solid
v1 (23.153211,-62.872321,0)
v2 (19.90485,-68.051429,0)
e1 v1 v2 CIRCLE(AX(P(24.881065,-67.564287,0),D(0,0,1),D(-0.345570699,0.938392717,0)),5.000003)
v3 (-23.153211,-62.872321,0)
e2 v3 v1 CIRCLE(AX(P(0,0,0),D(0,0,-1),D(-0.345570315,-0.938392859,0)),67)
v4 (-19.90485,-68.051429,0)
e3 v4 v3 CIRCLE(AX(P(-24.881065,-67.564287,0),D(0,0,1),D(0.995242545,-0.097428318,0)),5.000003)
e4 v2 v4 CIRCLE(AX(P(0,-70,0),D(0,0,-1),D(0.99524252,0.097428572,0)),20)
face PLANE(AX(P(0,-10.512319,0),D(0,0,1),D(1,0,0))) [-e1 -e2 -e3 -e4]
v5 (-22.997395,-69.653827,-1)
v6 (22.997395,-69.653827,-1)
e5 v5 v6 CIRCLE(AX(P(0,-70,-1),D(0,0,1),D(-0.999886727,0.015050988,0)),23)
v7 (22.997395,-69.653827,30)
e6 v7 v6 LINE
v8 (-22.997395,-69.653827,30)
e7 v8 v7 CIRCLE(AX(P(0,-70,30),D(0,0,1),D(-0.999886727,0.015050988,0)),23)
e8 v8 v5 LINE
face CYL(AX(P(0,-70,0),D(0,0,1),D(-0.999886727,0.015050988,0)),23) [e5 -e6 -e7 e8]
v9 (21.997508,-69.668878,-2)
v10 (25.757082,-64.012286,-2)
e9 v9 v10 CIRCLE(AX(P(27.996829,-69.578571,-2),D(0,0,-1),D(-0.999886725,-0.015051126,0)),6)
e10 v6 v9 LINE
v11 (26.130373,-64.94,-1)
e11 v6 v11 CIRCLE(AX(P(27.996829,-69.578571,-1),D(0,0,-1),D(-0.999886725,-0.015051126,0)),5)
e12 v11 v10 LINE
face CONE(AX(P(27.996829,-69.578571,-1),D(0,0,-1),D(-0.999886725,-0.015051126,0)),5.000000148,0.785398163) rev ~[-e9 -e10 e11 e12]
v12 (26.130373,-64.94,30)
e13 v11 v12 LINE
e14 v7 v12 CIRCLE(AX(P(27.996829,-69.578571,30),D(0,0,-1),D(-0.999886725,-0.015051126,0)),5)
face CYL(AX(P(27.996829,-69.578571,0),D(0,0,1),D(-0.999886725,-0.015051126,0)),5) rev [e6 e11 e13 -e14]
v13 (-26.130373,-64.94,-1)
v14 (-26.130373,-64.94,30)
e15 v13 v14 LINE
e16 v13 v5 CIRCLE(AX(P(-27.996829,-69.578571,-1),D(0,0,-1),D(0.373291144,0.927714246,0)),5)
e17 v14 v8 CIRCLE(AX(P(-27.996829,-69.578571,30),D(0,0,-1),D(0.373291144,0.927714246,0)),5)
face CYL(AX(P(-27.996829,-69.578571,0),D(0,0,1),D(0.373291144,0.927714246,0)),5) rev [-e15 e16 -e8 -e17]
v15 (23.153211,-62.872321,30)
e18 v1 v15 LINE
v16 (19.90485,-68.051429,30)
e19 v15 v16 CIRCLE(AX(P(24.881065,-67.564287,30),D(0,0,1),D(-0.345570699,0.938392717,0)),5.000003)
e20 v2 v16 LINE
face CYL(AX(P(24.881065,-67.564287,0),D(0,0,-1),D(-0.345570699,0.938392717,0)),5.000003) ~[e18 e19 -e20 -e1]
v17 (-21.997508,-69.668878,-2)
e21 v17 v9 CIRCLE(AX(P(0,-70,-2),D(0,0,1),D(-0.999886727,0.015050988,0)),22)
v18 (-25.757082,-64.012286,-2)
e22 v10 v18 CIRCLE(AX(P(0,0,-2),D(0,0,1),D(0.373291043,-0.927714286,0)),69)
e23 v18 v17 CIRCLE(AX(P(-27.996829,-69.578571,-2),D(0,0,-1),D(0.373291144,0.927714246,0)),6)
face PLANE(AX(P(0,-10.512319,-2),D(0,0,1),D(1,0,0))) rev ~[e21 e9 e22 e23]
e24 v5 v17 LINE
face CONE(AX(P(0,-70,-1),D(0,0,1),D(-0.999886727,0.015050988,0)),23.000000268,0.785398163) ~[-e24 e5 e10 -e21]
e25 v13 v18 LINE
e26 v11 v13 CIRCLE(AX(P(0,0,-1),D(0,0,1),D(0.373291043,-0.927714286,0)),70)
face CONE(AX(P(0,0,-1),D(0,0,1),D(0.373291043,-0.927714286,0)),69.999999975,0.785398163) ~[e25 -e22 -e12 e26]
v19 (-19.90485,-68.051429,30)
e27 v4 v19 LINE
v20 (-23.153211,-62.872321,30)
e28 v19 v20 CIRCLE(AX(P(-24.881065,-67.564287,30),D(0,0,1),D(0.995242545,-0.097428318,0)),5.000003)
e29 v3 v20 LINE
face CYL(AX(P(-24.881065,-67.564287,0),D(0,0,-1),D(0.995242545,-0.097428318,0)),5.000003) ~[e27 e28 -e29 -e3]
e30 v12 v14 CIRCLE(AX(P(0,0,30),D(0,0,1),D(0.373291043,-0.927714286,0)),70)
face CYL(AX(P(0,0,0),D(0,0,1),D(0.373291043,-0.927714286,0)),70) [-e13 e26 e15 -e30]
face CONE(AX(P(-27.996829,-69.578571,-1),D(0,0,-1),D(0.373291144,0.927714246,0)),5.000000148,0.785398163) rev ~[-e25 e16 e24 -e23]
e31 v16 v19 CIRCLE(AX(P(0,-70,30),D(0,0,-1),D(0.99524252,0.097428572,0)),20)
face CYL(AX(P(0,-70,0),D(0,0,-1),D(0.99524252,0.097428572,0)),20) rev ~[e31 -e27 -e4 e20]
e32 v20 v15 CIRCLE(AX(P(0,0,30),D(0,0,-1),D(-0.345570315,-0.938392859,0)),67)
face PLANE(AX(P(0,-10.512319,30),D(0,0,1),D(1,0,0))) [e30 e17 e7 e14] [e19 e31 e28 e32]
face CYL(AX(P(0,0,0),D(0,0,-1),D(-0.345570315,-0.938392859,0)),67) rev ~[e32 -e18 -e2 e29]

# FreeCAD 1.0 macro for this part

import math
import FreeCAD as App
import Part
import Sketcher
Q = App.Units.Quantity


def edges_at(feature, points):
    """Names of the edges that pass closest to the given points."""
    edges = feature.Shape.Edges
    near = lambda p: min(range(len(edges)), key=lambda i: edges[i].distToShape(Part.Vertex(*p))[0])
    return sorted({f"Edge{near(p) + 1}" for p in points})

doc = App.newDocument("Part")
body = doc.addObject("PartDesign::Body", "Body")

sketch1 = body.newObject("Sketcher::SketchObject", "Sketch")
sketch1.AttachmentSupport = (doc.getObject("XY_Plane"), [""])
sketch1.MapMode = "FlatFace"
sketch1.addGeometry(Part.ArcOfCircle(Part.Circle(App.Vector(28, -70, 0), App.Vector(0, 0, 1), 5), math.radians(112), math.radians(181)), False)
sketch1.addGeometry(Part.ArcOfCircle(Part.Circle(App.Vector(0, 0, 0), App.Vector(0, 0, 1), 70), math.radians(-68), math.radians(248)), False)
sketch1.addGeometry(Part.ArcOfCircle(Part.Circle(App.Vector(-28, -70, 0), App.Vector(0, 0, 1), 5), math.radians(-1), math.radians(68)), False)
sketch1.addGeometry(Part.ArcOfCircle(Part.Circle(App.Vector(0, -70, 0), App.Vector(0, 0, 1), 23), math.radians(179), math.radians(361)), False)
sketch1.addGeometry(Part.ArcOfCircle(Part.Circle(App.Vector(-25, -68, 0), App.Vector(0, 0, 1), 5), math.radians(-6), math.radians(70)), False)
sketch1.addGeometry(Part.ArcOfCircle(Part.Circle(App.Vector(0, 0, 0), App.Vector(0, 0, 1), 67), math.radians(-70), math.radians(250)), False)
sketch1.addGeometry(Part.ArcOfCircle(Part.Circle(App.Vector(25, -68, 0), App.Vector(0, 0, 1), 5), math.radians(110), math.radians(186)), False)
sketch1.addGeometry(Part.ArcOfCircle(Part.Circle(App.Vector(0, -70, 0), App.Vector(0, 0, 1), 20), math.radians(174), math.radians(366)), False)
sketch1.addConstraint(Sketcher.Constraint("Tangent", 0, 1, 1, 1))
sketch1.addConstraint(Sketcher.Constraint("Tangent", 1, 2, 2, 2))
sketch1.addConstraint(Sketcher.Constraint("Tangent", 2, 1, 3, 1))
sketch1.addConstraint(Sketcher.Constraint("Tangent", 3, 2, 0, 2))
sketch1.addConstraint(Sketcher.Constraint("Tangent", 4, 2, 5, 2))
sketch1.addConstraint(Sketcher.Constraint("Tangent", 5, 1, 6, 1))
sketch1.addConstraint(Sketcher.Constraint("Tangent", 6, 2, 7, 2))
sketch1.addConstraint(Sketcher.Constraint("Tangent", 7, 1, 4, 1))
sketch1.addConstraint(Sketcher.Constraint("Coincident", 1, 3, -1, 1))
sketch1.addConstraint(Sketcher.Constraint("Coincident", 5, 3, -1, 1))
sketch1.addConstraint(Sketcher.Constraint("Coincident", 7, 3, 3, 3))
sketch1.addConstraint(Sketcher.Constraint("Equal", 0, 2))
sketch1.addConstraint(Sketcher.Constraint("Equal", 4, 6))
sketch1.addConstraint(Sketcher.Constraint("PointOnObject", 3, 3, -2))
sketch1.addConstraint(Sketcher.Constraint("Radius", 0, Q("5 mm")))
sketch1.addConstraint(Sketcher.Constraint("Radius", 1, Q("70 mm")))
sketch1.addConstraint(Sketcher.Constraint("Radius", 3, Q("23 mm")))
sketch1.addConstraint(Sketcher.Constraint("Radius", 5, Q("67 mm")))
sketch1.addConstraint(Sketcher.Constraint("Radius", 7, Q("20 mm")))
sketch1.addConstraint(Sketcher.Constraint("DistanceY", 3, 3, -1, 1, Q("70 mm")))
sketch1.addConstraint(Sketcher.Constraint("Radius", 4, Q("5.000003 mm")))
pad1 = body.newObject("PartDesign::Pad", "Pad")
pad1.Profile = sketch1
pad1.Length = 30

sketch2 = body.newObject("Sketcher::SketchObject", "Sketch001")
sketch2.AttachmentSupport = (doc.getObject("XY_Plane"), [""])
sketch2.MapMode = "FlatFace"
sketch2.addGeometry(Part.ArcOfCircle(Part.Circle(App.Vector(28, -70, 0), App.Vector(0, 0, 1), 5), math.radians(112), math.radians(181)), False)
sketch2.addGeometry(Part.ArcOfCircle(Part.Circle(App.Vector(0, 0, 0), App.Vector(0, 0, 1), 70), math.radians(-68), math.radians(248)), False)
sketch2.addGeometry(Part.ArcOfCircle(Part.Circle(App.Vector(-28, -70, 0), App.Vector(0, 0, 1), 5), math.radians(-1), math.radians(68)), False)
sketch2.addGeometry(Part.ArcOfCircle(Part.Circle(App.Vector(0, -70, 0), App.Vector(0, 0, 1), 23), math.radians(179), math.radians(361)), False)
sketch2.addConstraint(Sketcher.Constraint("Tangent", 0, 1, 1, 1))
sketch2.addConstraint(Sketcher.Constraint("Tangent", 1, 2, 2, 2))
sketch2.addConstraint(Sketcher.Constraint("Tangent", 2, 1, 3, 1))
sketch2.addConstraint(Sketcher.Constraint("Tangent", 3, 2, 0, 2))
sketch2.addConstraint(Sketcher.Constraint("Coincident", 1, 3, -1, 1))
sketch2.addConstraint(Sketcher.Constraint("Equal", 0, 2))
sketch2.addConstraint(Sketcher.Constraint("PointOnObject", 3, 3, -2))
sketch2.addConstraint(Sketcher.Constraint("Radius", 0, Q("5 mm")))
sketch2.addConstraint(Sketcher.Constraint("Radius", 1, Q("70 mm")))
sketch2.addConstraint(Sketcher.Constraint("Radius", 3, Q("23 mm")))
sketch2.addConstraint(Sketcher.Constraint("DistanceY", 3, 3, -1, 1, Q("70 mm")))
pad2 = body.newObject("PartDesign::Pad", "Pad001")
pad2.Profile = sketch2
pad2.Length = 2
pad2.Reversed = True
doc.recompute()

chamfer = body.newObject("PartDesign::Chamfer", "Chamfer")
chamfer.Base = (pad2, edges_at(pad2, [(0, 70, -2)]))
chamfer.Size = 1

doc.recompute()
